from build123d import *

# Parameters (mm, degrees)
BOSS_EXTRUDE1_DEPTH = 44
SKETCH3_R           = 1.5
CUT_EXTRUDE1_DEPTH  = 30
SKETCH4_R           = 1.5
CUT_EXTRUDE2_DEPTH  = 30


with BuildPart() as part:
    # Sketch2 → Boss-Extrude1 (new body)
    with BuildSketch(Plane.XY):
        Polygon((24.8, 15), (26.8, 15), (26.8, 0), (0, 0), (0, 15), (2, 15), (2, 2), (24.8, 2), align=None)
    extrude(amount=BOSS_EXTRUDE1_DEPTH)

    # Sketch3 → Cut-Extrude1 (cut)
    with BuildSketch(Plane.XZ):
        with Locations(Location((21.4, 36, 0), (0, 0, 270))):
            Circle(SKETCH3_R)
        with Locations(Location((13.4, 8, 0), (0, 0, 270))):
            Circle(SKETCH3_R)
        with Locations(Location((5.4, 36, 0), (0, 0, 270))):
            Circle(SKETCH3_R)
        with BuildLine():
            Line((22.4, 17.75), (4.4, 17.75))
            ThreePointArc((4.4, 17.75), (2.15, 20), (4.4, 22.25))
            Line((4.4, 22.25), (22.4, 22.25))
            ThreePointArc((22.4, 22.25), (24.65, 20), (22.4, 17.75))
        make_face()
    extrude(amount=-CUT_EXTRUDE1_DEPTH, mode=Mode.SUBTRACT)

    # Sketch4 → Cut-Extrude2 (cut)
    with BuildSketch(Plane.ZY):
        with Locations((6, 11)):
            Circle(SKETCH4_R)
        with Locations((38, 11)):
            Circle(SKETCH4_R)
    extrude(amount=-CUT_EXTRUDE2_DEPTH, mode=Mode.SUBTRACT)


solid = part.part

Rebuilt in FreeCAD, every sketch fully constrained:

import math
import FreeCAD as App
import Part
import Sketcher


def add_polygon(sketch, points):
    """Adds a closed chain of lines whose ends are joined by coincident constraints."""
    first, n = sketch.GeometryCount, len(points)
    for a, b in zip(points, points[1:] + points[:1]):
        sketch.addGeometry(Part.LineSegment(App.Vector(*a, 0), App.Vector(*b, 0)), False)
    for i in range(n):
        sketch.addConstraint(Sketcher.Constraint("Coincident", first + i, 2, first + (i + 1) % n, 1))

doc = App.newDocument("Part")
params = doc.addObject("Spreadsheet::Sheet", "Params")
for row, (alias, value) in enumerate([
    ("sketch1_width", "2 mm"),
    ("sketch1_height", "13 mm"),
    ("sketch1_height2", "15 mm"),
    ("sketch1_width2", "22.8 mm"),
    ("pad1_length", "44 mm"),
    ("sketch2_diameter", "3 mm"),
    ("sketch2_width", "18 mm"),
    ("sketch2_radius", "2.25 mm"),
    ("pocket1_length", "30 mm"),
    ("sketch3_diameter", "3 mm"),
    ("pocket2_length", "30 mm"),
], start=1):
    params.set(f"A{row}", alias)
    params.set(f"B{row}", "=" + value)
    params.setAlias(f"B{row}", alias)

body = doc.addObject("PartDesign::Body", "Body")

# Sketch on XY plane
sketch1 = body.newObject("Sketcher::SketchObject", "Sketch")
sketch1.AttachmentSupport = (doc.getObject("XY_Plane"), [""])
sketch1.MapMode = "FlatFace"
add_polygon(sketch1, [(26.8, 15), (24.8, 15), (24.8, 2), (2, 2), (2, 15), (0, 15), (0, 0), (26.8, 0)])  # lines 0-7
sketch1.addConstraint(Sketcher.Constraint("Horizontal", 0))
sketch1.addConstraint(Sketcher.Constraint("Vertical", 1))
sketch1.addConstraint(Sketcher.Constraint("Horizontal", 2))
sketch1.addConstraint(Sketcher.Constraint("Vertical", 3))
sketch1.addConstraint(Sketcher.Constraint("Horizontal", 4))
sketch1.addConstraint(Sketcher.Constraint("Vertical", 5))
sketch1.addConstraint(Sketcher.Constraint("Horizontal", 6))
sketch1.addConstraint(Sketcher.Constraint("Vertical", 7))
sketch1.addConstraint(Sketcher.Constraint("Coincident", 5, 2, -1, 1))
sketch1.addConstraint(Sketcher.Constraint("Horizontal", 0, 2, 3, 2))
sketch1.addConstraint(Sketcher.Constraint("Equal", 0, 4))
sketch1.addConstraint(Sketcher.Constraint("DistanceX", 0, 2, 0, 1, 2.0))
sketch1.addConstraint(Sketcher.Constraint("DistanceY", 1, 2, 1, 1, 13.0))
sketch1.addConstraint(Sketcher.Constraint("DistanceY", 5, 2, 5, 1, 15.0))
sketch1.addConstraint(Sketcher.Constraint("DistanceX", 2, 2, 2, 1, 22.8))
sketch1.setExpression("Constraints[19]", "Params.sketch1_width")
sketch1.setExpression("Constraints[20]", "Params.sketch1_height")
sketch1.setExpression("Constraints[21]", "Params.sketch1_height2")
sketch1.setExpression("Constraints[22]", "Params.sketch1_width2")
pad1 = body.newObject("PartDesign::Pad", "Pad")
pad1.Profile = sketch1
pad1.setExpression("Length", "Params.pad1_length")

# Sketch on XZ plane
sketch2 = body.newObject("Sketcher::SketchObject", "Sketch001")
sketch2.AttachmentSupport = (doc.getObject("XZ_Plane"), [""])
sketch2.MapMode = "FlatFace"
sketch2.addGeometry(Part.Circle(App.Vector(21.4, 36, 0), App.Vector(0, 0, 1), 1.5), False)
sketch2.addGeometry(Part.Circle(App.Vector(13.4, 8, 0), App.Vector(0, 0, 1), 1.5), False)
sketch2.addGeometry(Part.Circle(App.Vector(5.4, 36, 0), App.Vector(0, 0, 1), 1.5), False)
sketch2.addGeometry(Part.LineSegment(App.Vector(4.4, 17.75, 0), App.Vector(22.4, 17.75, 0)), False)
sketch2.addGeometry(Part.ArcOfCircle(Part.Circle(App.Vector(22.4, 20, 0), App.Vector(0, 0, 1), 2.25), math.radians(-90), math.radians(90)), False)
sketch2.addGeometry(Part.LineSegment(App.Vector(22.4, 22.25, 0), App.Vector(4.4, 22.25, 0)), False)
sketch2.addGeometry(Part.ArcOfCircle(Part.Circle(App.Vector(4.4, 20, 0), App.Vector(0, 0, 1), 2.25), math.radians(90), math.radians(270)), False)
sketch2.addConstraint(Sketcher.Constraint("Tangent", 3, 2, 4, 1))
sketch2.addConstraint(Sketcher.Constraint("Tangent", 4, 2, 5, 1))
sketch2.addConstraint(Sketcher.Constraint("Tangent", 5, 2, 6, 1))
sketch2.addConstraint(Sketcher.Constraint("Tangent", 6, 2, 3, 1))
sketch2.addConstraint(Sketcher.Constraint("Horizontal", 3))
sketch2.addConstraint(Sketcher.Constraint("Horizontal", 5))
sketch2.addConstraint(Sketcher.Constraint("Equal", 0, 1))
sketch2.addConstraint(Sketcher.Constraint("Equal", 1, 2))
sketch2.addConstraint(Sketcher.Constraint("Horizontal", 0, 3, 2, 3))
sketch2.addConstraint(Sketcher.Constraint("Diameter", 0, 3.0))
sketch2.addConstraint(Sketcher.Constraint("DistanceX", 3, 1, 3, 2, 18.0))
sketch2.addConstraint(Sketcher.Constraint("Radius", 4, 2.25))
sketch2.addConstraint(Sketcher.Constraint("DistanceY", -1, 1, 0, 3, 36.0))
sketch2.addConstraint(Sketcher.Constraint("DistanceY", -1, 1, 1, 3, 8.0))
sketch2.addConstraint(Sketcher.Constraint("DistanceY", -1, 1, 4, 3, 20.0))
sketch2.addConstraint(Sketcher.Constraint("DistanceX", 1, 3, 0, 3, 8.0))
sketch2.addConstraint(Sketcher.Constraint("DistanceX", 2, 3, 0, 3, 16.0))
sketch2.addConstraint(Sketcher.Constraint("DistanceX", 1, 3, 4, 3, 9.0))
sketch2.addConstraint(Sketcher.Constraint("DistanceX", -1, 1, 0, 3, 21.4))
sketch2.setExpression("Constraints[9]", "Params.sketch2_diameter")
sketch2.setExpression("Constraints[10]", "Params.sketch2_width")
sketch2.setExpression("Constraints[11]", "Params.sketch2_radius")
pocket1 = body.newObject("PartDesign::Pocket", "Pocket")
pocket1.Profile = sketch2
pocket1.setExpression("Length", "Params.pocket1_length")

# Sketch on YZ plane
sketch3 = body.newObject("Sketcher::SketchObject", "Sketch002")
sketch3.AttachmentSupport = (doc.getObject("YZ_Plane"), [""])
sketch3.MapMode = "FlatFace"
sketch3.addGeometry(Part.Circle(App.Vector(11, 6, 0), App.Vector(0, 0, 1), 1.5), False)
sketch3.addGeometry(Part.Circle(App.Vector(11, 38, 0), App.Vector(0, 0, 1), 1.5), False)
sketch3.addConstraint(Sketcher.Constraint("Equal", 0, 1))
sketch3.addConstraint(Sketcher.Constraint("Vertical", 0, 3, 1, 3))
sketch3.addConstraint(Sketcher.Constraint("Diameter", 0, 3.0))
sketch3.addConstraint(Sketcher.Constraint("DistanceX", -1, 1, 0, 3, 11.0))
sketch3.addConstraint(Sketcher.Constraint("DistanceY", -1, 1, 0, 3, 6.0))
sketch3.addConstraint(Sketcher.Constraint("DistanceY", -1, 1, 1, 3, 38.0))
sketch3.setExpression("Constraints[2]", "Params.sketch3_diameter")
pocket2 = body.newObject("PartDesign::Pocket", "Pocket001")
pocket2.Profile = sketch3
pocket2.setExpression("Length", "Params.pocket2_length")
pocket2.Reversed = True

doc.recompute()
